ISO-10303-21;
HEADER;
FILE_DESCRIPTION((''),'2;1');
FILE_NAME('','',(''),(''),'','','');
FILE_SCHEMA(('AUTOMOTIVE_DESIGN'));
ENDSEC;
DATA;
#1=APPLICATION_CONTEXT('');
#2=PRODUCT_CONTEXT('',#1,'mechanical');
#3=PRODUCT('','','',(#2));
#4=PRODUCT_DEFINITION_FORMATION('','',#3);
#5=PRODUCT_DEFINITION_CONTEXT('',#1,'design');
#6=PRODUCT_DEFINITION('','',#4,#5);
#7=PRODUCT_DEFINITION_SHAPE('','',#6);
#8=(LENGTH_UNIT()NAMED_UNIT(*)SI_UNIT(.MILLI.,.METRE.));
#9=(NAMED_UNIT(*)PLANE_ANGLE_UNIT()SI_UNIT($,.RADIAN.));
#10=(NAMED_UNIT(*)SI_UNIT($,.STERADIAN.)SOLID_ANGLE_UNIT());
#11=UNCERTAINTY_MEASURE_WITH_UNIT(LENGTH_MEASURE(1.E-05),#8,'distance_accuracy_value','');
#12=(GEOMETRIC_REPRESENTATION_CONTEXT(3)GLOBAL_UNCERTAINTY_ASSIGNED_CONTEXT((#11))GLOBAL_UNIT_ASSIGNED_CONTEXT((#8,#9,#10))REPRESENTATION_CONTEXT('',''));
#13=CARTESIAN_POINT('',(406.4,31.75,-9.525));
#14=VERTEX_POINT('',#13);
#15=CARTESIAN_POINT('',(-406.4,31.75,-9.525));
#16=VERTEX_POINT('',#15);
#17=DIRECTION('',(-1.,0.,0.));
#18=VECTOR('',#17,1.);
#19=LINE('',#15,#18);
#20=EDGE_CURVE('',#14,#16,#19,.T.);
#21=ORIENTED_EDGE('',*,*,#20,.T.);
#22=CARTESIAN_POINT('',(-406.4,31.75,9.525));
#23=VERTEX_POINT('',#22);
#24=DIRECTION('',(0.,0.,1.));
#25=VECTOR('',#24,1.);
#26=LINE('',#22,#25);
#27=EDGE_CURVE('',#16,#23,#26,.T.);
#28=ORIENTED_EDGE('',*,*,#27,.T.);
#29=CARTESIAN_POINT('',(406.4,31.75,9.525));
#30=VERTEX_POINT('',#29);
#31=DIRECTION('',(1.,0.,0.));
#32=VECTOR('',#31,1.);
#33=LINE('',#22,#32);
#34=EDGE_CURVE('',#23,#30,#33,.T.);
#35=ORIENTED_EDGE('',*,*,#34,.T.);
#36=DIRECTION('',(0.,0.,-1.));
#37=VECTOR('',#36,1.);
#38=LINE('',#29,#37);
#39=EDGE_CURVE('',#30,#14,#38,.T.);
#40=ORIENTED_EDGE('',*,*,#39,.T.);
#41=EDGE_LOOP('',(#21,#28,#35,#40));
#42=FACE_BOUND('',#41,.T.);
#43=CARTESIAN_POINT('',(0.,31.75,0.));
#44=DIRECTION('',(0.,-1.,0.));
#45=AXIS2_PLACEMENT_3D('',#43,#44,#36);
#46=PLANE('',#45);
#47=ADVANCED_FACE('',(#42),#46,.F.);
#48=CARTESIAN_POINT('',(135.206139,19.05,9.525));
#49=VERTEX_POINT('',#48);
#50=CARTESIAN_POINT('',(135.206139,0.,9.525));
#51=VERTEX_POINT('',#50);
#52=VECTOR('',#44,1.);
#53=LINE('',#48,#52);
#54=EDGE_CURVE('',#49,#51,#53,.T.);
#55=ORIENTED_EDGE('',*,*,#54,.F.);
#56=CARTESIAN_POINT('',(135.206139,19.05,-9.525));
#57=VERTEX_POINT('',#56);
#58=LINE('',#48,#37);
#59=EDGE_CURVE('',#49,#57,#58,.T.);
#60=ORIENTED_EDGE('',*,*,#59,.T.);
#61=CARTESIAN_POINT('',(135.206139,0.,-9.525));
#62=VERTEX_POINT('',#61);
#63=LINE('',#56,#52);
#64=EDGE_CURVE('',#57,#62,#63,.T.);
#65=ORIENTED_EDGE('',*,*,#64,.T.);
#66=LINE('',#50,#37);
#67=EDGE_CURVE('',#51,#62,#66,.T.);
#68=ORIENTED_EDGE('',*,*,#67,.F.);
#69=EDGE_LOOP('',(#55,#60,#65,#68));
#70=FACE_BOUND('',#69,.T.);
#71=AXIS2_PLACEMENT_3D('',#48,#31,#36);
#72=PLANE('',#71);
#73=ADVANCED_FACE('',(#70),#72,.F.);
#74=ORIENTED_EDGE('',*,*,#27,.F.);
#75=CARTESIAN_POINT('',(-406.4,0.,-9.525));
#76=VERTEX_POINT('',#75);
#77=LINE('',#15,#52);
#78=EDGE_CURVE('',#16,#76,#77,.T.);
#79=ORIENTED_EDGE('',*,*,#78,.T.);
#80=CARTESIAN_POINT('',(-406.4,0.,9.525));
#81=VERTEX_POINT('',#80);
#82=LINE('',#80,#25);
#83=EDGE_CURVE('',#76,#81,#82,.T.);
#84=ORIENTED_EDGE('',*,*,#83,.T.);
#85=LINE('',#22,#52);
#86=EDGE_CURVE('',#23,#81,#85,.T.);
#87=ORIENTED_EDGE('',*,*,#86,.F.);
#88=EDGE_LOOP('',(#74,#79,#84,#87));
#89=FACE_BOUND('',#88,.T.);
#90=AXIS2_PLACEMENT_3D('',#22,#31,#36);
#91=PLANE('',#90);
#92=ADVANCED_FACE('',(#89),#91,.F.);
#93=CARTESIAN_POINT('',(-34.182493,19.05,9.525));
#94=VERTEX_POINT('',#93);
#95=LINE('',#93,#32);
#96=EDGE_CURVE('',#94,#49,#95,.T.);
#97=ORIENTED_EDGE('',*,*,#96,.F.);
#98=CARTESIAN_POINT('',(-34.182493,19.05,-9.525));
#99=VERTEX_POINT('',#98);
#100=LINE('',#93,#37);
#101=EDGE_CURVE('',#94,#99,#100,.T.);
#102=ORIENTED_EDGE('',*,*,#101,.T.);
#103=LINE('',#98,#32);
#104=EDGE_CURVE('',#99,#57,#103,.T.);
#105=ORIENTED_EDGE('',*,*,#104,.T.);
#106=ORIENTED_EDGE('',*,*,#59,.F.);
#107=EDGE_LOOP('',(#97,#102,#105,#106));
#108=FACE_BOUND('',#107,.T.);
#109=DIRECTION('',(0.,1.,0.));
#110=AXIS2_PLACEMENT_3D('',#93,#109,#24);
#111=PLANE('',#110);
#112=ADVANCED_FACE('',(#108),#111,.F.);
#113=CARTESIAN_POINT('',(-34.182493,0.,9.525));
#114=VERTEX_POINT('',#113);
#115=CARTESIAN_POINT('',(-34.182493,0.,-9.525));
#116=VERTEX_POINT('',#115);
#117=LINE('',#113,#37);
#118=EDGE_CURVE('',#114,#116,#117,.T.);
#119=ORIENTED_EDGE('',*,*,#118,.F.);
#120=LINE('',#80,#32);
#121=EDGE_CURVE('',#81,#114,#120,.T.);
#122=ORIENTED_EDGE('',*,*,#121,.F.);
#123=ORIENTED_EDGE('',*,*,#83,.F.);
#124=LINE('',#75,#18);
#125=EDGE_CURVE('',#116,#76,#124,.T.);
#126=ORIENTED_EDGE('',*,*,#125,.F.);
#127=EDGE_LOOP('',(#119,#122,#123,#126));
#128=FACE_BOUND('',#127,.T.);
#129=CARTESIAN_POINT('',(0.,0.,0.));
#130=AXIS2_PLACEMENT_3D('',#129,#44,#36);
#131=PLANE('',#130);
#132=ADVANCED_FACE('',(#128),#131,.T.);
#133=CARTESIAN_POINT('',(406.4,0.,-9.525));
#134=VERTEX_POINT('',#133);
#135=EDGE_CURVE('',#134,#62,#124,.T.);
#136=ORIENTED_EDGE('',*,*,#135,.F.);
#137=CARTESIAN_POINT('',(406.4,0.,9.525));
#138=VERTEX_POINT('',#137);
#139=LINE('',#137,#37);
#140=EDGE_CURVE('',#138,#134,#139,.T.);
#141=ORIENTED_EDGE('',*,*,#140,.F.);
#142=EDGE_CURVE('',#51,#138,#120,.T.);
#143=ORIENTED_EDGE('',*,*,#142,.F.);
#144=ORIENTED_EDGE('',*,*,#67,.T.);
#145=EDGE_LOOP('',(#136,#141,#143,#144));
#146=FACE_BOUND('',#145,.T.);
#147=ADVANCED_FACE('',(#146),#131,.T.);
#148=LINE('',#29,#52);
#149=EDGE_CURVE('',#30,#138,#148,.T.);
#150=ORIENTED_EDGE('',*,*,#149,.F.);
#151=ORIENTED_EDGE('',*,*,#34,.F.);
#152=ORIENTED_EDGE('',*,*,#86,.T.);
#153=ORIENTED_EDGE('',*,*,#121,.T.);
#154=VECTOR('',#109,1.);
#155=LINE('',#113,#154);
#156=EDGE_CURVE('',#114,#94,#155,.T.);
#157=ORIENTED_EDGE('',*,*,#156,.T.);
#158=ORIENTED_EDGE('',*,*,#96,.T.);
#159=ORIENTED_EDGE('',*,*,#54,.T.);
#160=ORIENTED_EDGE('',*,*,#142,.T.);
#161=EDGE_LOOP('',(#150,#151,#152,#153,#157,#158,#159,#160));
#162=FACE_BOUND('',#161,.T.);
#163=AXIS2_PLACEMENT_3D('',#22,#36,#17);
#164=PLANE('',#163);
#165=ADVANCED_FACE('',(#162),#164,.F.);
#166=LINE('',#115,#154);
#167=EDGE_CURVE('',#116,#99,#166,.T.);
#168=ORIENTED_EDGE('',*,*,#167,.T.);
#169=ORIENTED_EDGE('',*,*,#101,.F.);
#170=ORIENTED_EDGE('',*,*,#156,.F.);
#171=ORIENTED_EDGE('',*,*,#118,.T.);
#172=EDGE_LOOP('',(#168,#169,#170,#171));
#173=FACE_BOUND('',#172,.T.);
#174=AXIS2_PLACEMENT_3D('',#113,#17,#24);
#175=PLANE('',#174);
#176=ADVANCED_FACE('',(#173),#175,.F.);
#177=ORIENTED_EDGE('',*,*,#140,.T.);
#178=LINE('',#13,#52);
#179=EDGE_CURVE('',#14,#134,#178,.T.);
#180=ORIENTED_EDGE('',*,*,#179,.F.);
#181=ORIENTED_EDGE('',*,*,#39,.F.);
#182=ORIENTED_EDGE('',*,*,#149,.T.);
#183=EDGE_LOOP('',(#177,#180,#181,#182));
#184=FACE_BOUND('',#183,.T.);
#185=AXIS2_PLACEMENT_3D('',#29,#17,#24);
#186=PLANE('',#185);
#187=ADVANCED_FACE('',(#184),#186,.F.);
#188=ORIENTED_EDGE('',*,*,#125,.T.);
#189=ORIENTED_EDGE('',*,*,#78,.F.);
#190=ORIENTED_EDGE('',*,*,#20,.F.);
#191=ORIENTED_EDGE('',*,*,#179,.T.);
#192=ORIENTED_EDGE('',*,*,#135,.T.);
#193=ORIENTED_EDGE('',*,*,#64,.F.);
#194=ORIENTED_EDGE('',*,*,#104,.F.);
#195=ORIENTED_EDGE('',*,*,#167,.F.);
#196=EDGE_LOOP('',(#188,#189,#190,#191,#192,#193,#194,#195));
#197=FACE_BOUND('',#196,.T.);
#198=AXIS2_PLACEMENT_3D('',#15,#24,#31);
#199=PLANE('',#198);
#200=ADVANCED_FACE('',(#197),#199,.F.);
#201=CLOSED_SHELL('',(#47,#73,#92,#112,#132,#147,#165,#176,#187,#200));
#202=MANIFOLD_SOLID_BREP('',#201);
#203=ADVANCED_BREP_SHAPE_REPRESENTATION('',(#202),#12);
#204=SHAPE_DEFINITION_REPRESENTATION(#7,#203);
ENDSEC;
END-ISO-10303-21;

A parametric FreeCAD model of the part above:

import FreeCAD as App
import Part
import Sketcher
from FreeCAD import Vector
Q = App.Units.Quantity

doc = App.newDocument("Part")
body = doc.addObject("PartDesign::Body", "Body")

# Sketch on XZ plane
sketch1 = body.newObject("Sketcher::SketchObject", "Sketch")
sketch1.AttachmentSupport = (doc.getObject("XZ_Plane"), [""])
sketch1.MapMode = "FlatFace"
sketch1.addGeometry([
    Part.LineSegment(Vector(-406, -10, 0), Vector(-406, 10, 0)),
    Part.LineSegment(Vector(-406, 10, 0), Vector(406, 10, 0)),
    Part.LineSegment(Vector(406, 10, 0), Vector(406, -10, 0)),
    Part.LineSegment(Vector(406, -10, 0), Vector(-406, -10, 0)),
], False)
sketch1.addConstraint([
    Sketcher.Constraint("Coincident", 0, 2, 1, 1),
    Sketcher.Constraint("Coincident", 1, 2, 2, 1),
    Sketcher.Constraint("Coincident", 2, 2, 3, 1),
    Sketcher.Constraint("Coincident", 3, 2, 0, 1),
    Sketcher.Constraint("Vertical", 0),
    Sketcher.Constraint("Horizontal", 1),
    Sketcher.Constraint("Vertical", 2),
    Sketcher.Constraint("Horizontal", 3),
    Sketcher.Constraint("Symmetric", 0, 2, 2, 2, -1, 1),
    Sketcher.Constraint("DistanceX", 1, 1, 1, 2, Q("32 in")),
    Sketcher.Constraint("DistanceY", 0, 1, 0, 2, Q("0.75 in")),
])
pad1 = body.newObject("PartDesign::Pad", "Pad")
pad1.Profile = sketch1
pad1.Length = Q("1.25 in")
pad1.Reversed = True

# Sketch on XY plane
sketch2 = body.newObject("Sketcher::SketchObject", "Sketch001")
sketch2.AttachmentSupport = (doc.getObject("XY_Plane"), [""])
sketch2.MapMode = "FlatFace"
sketch2.AttachmentOffset = App.Placement(Vector(0, 0, -0.375 * 25.4), App.Rotation())
sketch2.addGeometry([
    Part.LineSegment(Vector(135, 19, 0), Vector(135, 0, 0)),
    Part.LineSegment(Vector(135, 0, 0), Vector(-34, 0, 0)),
    Part.LineSegment(Vector(-34, 0, 0), Vector(-34, 19, 0)),
    Part.LineSegment(Vector(-34, 19, 0), Vector(135, 19, 0)),
], False)
sketch2.addConstraint([
    Sketcher.Constraint("Coincident", 0, 2, 1, 1),
    Sketcher.Constraint("Coincident", 1, 2, 2, 1),
    Sketcher.Constraint("Coincident", 2, 2, 3, 1),
    Sketcher.Constraint("Coincident", 3, 2, 0, 1),
    Sketcher.Constraint("Vertical", 0),
    Sketcher.Constraint("Horizontal", 1),
    Sketcher.Constraint("Vertical", 2),
    Sketcher.Constraint("Horizontal", 3),
    Sketcher.Constraint("PointOnObject", 0, 2, -1),
    Sketcher.Constraint("DistanceY", 0, 2, 0, 1, Q("0.75 in")),
    Sketcher.Constraint("DistanceX", 1, 2, 1, 1, Q("169.388633 mm")),
    Sketcher.Constraint("DistanceX", -1, 1, 0, 2, Q("135.206139 mm")),
])
pocket1 = body.newObject("PartDesign::Pocket", "Pocket")
pocket1.Profile = sketch2
pocket1.Type = "ThroughAll"
pocket1.Reversed = True

doc.recompute()
